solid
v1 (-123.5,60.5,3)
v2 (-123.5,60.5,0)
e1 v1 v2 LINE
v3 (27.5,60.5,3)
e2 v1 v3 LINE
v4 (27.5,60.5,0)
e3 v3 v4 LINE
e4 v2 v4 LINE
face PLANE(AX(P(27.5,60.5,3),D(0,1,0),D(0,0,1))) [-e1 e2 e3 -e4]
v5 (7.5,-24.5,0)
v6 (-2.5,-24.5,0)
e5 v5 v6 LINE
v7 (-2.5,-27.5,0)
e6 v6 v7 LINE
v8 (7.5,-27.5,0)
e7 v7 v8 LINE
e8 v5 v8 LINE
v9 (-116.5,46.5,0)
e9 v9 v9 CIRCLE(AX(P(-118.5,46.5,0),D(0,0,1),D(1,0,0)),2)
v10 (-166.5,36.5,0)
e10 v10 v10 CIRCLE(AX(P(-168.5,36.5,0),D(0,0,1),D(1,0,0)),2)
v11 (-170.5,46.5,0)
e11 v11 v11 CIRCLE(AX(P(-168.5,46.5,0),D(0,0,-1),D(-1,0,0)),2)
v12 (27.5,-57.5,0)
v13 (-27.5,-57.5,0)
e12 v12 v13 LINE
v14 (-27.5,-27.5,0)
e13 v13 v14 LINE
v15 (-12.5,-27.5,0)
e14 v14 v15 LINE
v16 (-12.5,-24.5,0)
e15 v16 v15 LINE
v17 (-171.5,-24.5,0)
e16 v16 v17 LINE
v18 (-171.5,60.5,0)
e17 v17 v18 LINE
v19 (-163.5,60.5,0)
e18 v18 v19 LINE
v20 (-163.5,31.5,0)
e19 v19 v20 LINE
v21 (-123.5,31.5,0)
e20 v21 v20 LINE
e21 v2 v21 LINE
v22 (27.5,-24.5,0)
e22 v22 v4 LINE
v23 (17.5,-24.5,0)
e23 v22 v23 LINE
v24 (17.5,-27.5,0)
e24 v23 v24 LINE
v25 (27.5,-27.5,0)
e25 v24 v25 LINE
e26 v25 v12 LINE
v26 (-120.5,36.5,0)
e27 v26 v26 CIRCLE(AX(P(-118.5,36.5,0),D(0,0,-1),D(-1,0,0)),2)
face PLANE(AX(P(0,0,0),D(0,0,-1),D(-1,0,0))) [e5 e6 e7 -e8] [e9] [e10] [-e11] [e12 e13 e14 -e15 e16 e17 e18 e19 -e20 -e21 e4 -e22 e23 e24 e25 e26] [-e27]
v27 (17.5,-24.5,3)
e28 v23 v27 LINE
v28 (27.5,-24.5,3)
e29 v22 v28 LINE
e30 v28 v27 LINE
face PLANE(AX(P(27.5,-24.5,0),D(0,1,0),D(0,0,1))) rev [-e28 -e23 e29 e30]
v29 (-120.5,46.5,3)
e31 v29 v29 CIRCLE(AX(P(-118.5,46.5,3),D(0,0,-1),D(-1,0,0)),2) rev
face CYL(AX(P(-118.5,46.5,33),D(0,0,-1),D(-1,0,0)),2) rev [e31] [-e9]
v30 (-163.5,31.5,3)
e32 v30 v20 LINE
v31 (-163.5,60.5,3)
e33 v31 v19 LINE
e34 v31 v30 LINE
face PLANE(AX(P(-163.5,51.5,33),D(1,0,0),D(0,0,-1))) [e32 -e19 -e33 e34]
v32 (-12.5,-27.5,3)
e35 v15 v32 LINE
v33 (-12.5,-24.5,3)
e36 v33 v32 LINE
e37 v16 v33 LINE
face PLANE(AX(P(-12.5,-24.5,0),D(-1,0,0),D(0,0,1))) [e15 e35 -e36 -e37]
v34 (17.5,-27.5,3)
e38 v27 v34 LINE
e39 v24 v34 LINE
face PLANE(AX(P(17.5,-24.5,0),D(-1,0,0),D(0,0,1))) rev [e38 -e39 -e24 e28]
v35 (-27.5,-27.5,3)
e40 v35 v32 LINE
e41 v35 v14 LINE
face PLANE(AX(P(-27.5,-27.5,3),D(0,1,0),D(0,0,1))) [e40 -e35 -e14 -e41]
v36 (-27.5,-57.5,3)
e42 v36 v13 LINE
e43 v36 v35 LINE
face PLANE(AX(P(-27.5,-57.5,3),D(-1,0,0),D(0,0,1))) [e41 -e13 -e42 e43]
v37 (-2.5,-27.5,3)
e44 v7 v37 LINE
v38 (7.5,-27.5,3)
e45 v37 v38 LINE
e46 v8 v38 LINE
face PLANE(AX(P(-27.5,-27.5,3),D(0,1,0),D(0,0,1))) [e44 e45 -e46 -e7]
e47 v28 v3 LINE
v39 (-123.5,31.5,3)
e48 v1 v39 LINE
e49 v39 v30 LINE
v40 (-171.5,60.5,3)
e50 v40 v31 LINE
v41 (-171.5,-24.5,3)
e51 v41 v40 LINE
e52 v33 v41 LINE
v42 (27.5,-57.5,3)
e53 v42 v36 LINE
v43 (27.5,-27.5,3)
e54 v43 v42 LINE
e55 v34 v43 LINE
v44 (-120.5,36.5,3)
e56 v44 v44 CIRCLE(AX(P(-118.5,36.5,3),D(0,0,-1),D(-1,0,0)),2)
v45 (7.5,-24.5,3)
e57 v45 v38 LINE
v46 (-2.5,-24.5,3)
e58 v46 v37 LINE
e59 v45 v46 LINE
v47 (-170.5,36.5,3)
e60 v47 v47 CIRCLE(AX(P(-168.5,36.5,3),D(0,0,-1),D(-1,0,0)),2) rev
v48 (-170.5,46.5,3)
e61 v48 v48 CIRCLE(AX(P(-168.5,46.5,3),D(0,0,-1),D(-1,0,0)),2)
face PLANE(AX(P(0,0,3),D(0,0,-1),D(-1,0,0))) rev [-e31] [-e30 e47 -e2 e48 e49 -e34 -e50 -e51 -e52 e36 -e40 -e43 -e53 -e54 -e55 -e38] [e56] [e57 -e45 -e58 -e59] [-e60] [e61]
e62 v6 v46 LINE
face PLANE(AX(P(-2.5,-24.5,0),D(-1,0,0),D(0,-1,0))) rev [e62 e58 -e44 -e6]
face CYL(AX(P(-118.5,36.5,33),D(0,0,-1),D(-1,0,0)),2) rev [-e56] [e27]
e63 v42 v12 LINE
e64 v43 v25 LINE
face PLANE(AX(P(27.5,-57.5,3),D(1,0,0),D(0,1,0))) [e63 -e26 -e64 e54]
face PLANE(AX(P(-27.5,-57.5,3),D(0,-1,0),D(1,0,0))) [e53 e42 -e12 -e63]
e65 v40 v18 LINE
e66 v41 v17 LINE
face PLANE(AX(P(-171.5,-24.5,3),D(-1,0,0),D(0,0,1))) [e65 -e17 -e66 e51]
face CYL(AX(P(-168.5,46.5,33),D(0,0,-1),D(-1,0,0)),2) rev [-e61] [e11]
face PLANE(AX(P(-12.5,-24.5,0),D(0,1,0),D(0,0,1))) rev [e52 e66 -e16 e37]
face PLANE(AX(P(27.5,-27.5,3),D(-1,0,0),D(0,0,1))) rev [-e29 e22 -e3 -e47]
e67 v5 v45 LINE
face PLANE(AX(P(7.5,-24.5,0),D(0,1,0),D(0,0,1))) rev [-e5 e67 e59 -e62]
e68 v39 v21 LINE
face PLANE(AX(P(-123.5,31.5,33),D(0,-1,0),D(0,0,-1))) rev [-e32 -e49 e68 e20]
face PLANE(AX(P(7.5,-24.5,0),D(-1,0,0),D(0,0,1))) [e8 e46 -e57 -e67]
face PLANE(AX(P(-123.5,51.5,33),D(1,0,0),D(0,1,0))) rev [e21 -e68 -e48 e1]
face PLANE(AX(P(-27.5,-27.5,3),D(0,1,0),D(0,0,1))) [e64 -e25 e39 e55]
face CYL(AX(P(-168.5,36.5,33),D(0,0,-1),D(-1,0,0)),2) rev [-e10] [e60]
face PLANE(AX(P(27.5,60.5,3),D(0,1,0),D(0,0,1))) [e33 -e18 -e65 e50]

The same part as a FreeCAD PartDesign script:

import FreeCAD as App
import Part
import Sketcher


def add_polygon(sketch, points):
    """Adds a closed chain of lines whose ends are joined by coincident constraints."""
    first, n = sketch.GeometryCount, len(points)
    for a, b in zip(points, points[1:] + points[:1]):
        sketch.addGeometry(Part.LineSegment(App.Vector(*a, 0), App.Vector(*b, 0)), False)
    for i in range(n):
        sketch.addConstraint(Sketcher.Constraint("Coincident", first + i, 2, first + (i + 1) % n, 1))

doc = App.newDocument("Part")
params = doc.addObject("Spreadsheet::Sheet", "Params")
for row, (alias, value) in enumerate([
    ("sketch1_width", "55 mm"),
    ("pad1_length", "3 mm"),
    ("sketch2_width", "10 mm"),
    ("sketch2_width2", "15 mm"),
    ("sketch2_height", "3 mm"),
    ("pocket1_length", "3 mm"),
    ("sketch3_width", "55 mm"),
    ("sketch3_height", "30 mm"),
    ("pad2_length", "3 mm"),
    ("sketch4_width", "144 mm"),
    ("sketch4_height", "52 mm"),
    ("pad3_length", "3 mm"),
    ("sketch5_width", "199 mm"),
    ("sketch5_height", "13 mm"),
    ("pad4_length", "3 mm"),
    ("sketch6_width", "199 mm"),
    ("sketch6_height", "20 mm"),
    ("pad5_length", "3 mm"),
    ("sketch7_diameter", "4 mm"),
    ("sketch7_width", "40 mm"),
    ("sketch7_height", "20 mm"),
    ("pocket2_length", "33 mm"),
    ("sketch8_width", "40 mm"),
    ("sketch8_height", "9 mm"),
    ("pocket3_length", "33 mm"),
], start=1):
    params.set(f"A{row}", alias)
    params.set(f"B{row}", "=" + value)
    params.setAlias(f"B{row}", alias)

body = doc.addObject("PartDesign::Body", "Body")

# Sketch on XY plane
sketch1 = body.newObject("Sketcher::SketchObject", "Sketch")
sketch1.AttachmentSupport = (doc.getObject("XY_Plane"), [""])
sketch1.MapMode = "FlatFace"
add_polygon(sketch1, [(-27.5, 27.5), (-27.5, -27.5), (27.5, -27.5), (27.5, 27.5)])  # lines 0-3
sketch1.addConstraint(Sketcher.Constraint("Vertical", 0))
sketch1.addConstraint(Sketcher.Constraint("Horizontal", 1))
sketch1.addConstraint(Sketcher.Constraint("Vertical", 2))
sketch1.addConstraint(Sketcher.Constraint("Horizontal", 3))
sketch1.addConstraint(Sketcher.Constraint("Symmetric", 0, 2, 2, 2, -1, 1))
sketch1.addConstraint(Sketcher.Constraint("Equal", 3, 0))
sketch1.addConstraint(Sketcher.Constraint("DistanceX", 1, 1, 1, 2, 55.0))
sketch1.setExpression("Constraints[10]", "Params.sketch1_width")
pad1 = body.newObject("PartDesign::Pad", "Pad")
pad1.Profile = sketch1
pad1.setExpression("Length", "Params.pad1_length")

# Sketch on XY plane
sketch2 = body.newObject("Sketcher::SketchObject", "Sketch001")
sketch2.AttachmentSupport = (doc.getObject("XY_Plane"), [""])
sketch2.MapMode = "FlatFace"
sketch2.AttachmentOffset = App.Placement(App.Vector(0, 0, 3), App.Rotation())
add_polygon(sketch2, [(17.5, -24.5), (17.5, -27.5), (27.5, -27.5), (27.5, -24.5)])  # lines 0-3
add_polygon(sketch2, [(-2.5, -24.5), (-2.5, -27.5), (7.5, -27.5), (7.5, -24.5)])  # lines 4-7
add_polygon(sketch2, [(-27.5, -24.5), (-27.5, -27.5), (-12.5, -27.5), (-12.5, -24.5)])  # lines 8-11
sketch2.addConstraint(Sketcher.Constraint("Vertical", 0))
sketch2.addConstraint(Sketcher.Constraint("Horizontal", 1))
sketch2.addConstraint(Sketcher.Constraint("Vertical", 2))
sketch2.addConstraint(Sketcher.Constraint("Horizontal", 3))
sketch2.addConstraint(Sketcher.Constraint("Vertical", 4))
sketch2.addConstraint(Sketcher.Constraint("Horizontal", 5))
sketch2.addConstraint(Sketcher.Constraint("Vertical", 6))
sketch2.addConstraint(Sketcher.Constraint("Horizontal", 7))
sketch2.addConstraint(Sketcher.Constraint("Vertical", 8))
sketch2.addConstraint(Sketcher.Constraint("Horizontal", 9))
sketch2.addConstraint(Sketcher.Constraint("Vertical", 10))
sketch2.addConstraint(Sketcher.Constraint("Horizontal", 11))
sketch2.addConstraint(Sketcher.Constraint("Symmetric", 1, 2, 8, 2, -2))
sketch2.addConstraint(Sketcher.Constraint("Horizontal", 1, 2, 4, 2))
sketch2.addConstraint(Sketcher.Constraint("Horizontal", 3, 2, 6, 2))
sketch2.addConstraint(Sketcher.Constraint("Horizontal", 7, 2, 10, 2))
sketch2.addConstraint(Sketcher.Constraint("Equal", 3, 5))
sketch2.addConstraint(Sketcher.Constraint("DistanceX", 1, 1, 1, 2, 10.0))
sketch2.addConstraint(Sketcher.Constraint("DistanceX", 9, 1, 9, 2, 15.0))
sketch2.addConstraint(Sketcher.Constraint("DistanceY", 0, 2, 0, 1, 3.0))
sketch2.addConstraint(Sketcher.Constraint("DistanceX", 4, 2, 0, 2, 20.0))
sketch2.addConstraint(Sketcher.Constraint("DistanceX", 8, 2, 4, 2, 25.0))
sketch2.addConstraint(Sketcher.Constraint("DistanceY", 0, 2, -1, 1, 27.5))
sketch2.setExpression("Constraints[29]", "Params.sketch2_width")
sketch2.setExpression("Constraints[30]", "Params.sketch2_width2")
sketch2.setExpression("Constraints[31]", "Params.sketch2_height")
pocket1 = body.newObject("PartDesign::Pocket", "Pocket")
pocket1.Profile = sketch2
pocket1.setExpression("Length", "Params.pocket1_length")

# Sketch on XY plane
sketch3 = body.newObject("Sketcher::SketchObject", "Sketch002")
sketch3.AttachmentSupport = (doc.getObject("XY_Plane"), [""])
sketch3.MapMode = "FlatFace"
add_polygon(sketch3, [(27.5, -27.5), (27.5, -57.5), (-27.5, -57.5), (-27.5, -27.5)])  # lines 0-3
sketch3.addConstraint(Sketcher.Constraint("Vertical", 0))
sketch3.addConstraint(Sketcher.Constraint("Horizontal", 1))
sketch3.addConstraint(Sketcher.Constraint("Vertical", 2))
sketch3.addConstraint(Sketcher.Constraint("Horizontal", 3))
sketch3.addConstraint(Sketcher.Constraint("DistanceX", 1, 2, 1, 1, 55.0))
sketch3.addConstraint(Sketcher.Constraint("DistanceY", 0, 2, 0, 1, 30.0))
sketch3.addConstraint(Sketcher.Constraint("DistanceX", -1, 1, 0, 2, 27.5))
sketch3.addConstraint(Sketcher.Constraint("DistanceY", 0, 2, -1, 1, 57.5))
sketch3.setExpression("Constraints[8]", "Params.sketch3_width")
sketch3.setExpression("Constraints[9]", "Params.sketch3_height")
pad2 = body.newObject("PartDesign::Pad", "Pad001")
pad2.Profile = sketch3
pad2.setExpression("Length", "Params.pad2_length")

# Sketch on XY plane
sketch4 = body.newObject("Sketcher::SketchObject", "Sketch003")
sketch4.AttachmentSupport = (doc.getObject("XY_Plane"), [""])
sketch4.MapMode = "FlatFace"
add_polygon(sketch4, [(-27.5, 27.5), (-27.5, -24.5), (-171.5, -24.5), (-171.5, 27.5)])  # lines 0-3
sketch4.addConstraint(Sketcher.Constraint("Vertical", 0))
sketch4.addConstraint(Sketcher.Constraint("Horizontal", 1))
sketch4.addConstraint(Sketcher.Constraint("Vertical", 2))
sketch4.addConstraint(Sketcher.Constraint("Horizontal", 3))
sketch4.addConstraint(Sketcher.Constraint("DistanceX", 1, 2, 1, 1, 144.0))
sketch4.addConstraint(Sketcher.Constraint("DistanceY", 0, 2, 0, 1, 52.0))
sketch4.addConstraint(Sketcher.Constraint("DistanceX", 0, 2, -1, 1, 27.5))
sketch4.addConstraint(Sketcher.Constraint("DistanceY", 0, 2, -1, 1, 24.5))
sketch4.setExpression("Constraints[8]", "Params.sketch4_width")
sketch4.setExpression("Constraints[9]", "Params.sketch4_height")
pad3 = body.newObject("PartDesign::Pad", "Pad002")
pad3.Profile = sketch4
pad3.setExpression("Length", "Params.pad3_length")

# Sketch on XY plane
sketch5 = body.newObject("Sketcher::SketchObject", "Sketch004")
sketch5.AttachmentSupport = (doc.getObject("XY_Plane"), [""])
sketch5.MapMode = "FlatFace"
add_polygon(sketch5, [(27.5, 40.5), (27.5, 27.5), (-171.5, 27.5), (-171.5, 40.5)])  # lines 0-3
sketch5.addConstraint(Sketcher.Constraint("Vertical", 0))
sketch5.addConstraint(Sketcher.Constraint("Horizontal", 1))
sketch5.addConstraint(Sketcher.Constraint("Vertical", 2))
sketch5.addConstraint(Sketcher.Constraint("Horizontal", 3))
sketch5.addConstraint(Sketcher.Constraint("DistanceX", 1, 2, 1, 1, 199.0))
sketch5.addConstraint(Sketcher.Constraint("DistanceY", 0, 2, 0, 1, 13.0))
sketch5.addConstraint(Sketcher.Constraint("DistanceX", -1, 1, 0, 2, 27.5))
sketch5.addConstraint(Sketcher.Constraint("DistanceY", -1, 1, 0, 2, 27.5))
sketch5.setExpression("Constraints[8]", "Params.sketch5_width")
sketch5.setExpression("Constraints[9]", "Params.sketch5_height")
pad4 = body.newObject("PartDesign::Pad", "Pad003")
pad4.Profile = sketch5
pad4.setExpression("Length", "Params.pad4_length")

# Sketch on XY plane
sketch6 = body.newObject("Sketcher::SketchObject", "Sketch005")
sketch6.AttachmentSupport = (doc.getObject("XY_Plane"), [""])
sketch6.MapMode = "FlatFace"
add_polygon(sketch6, [(27.5, 60.5), (27.5, 40.5), (-171.5, 40.5), (-171.5, 60.5)])  # lines 0-3
sketch6.addConstraint(Sketcher.Constraint("Vertical", 0))
sketch6.addConstraint(Sketcher.Constraint("Horizontal", 1))
sketch6.addConstraint(Sketcher.Constraint("Vertical", 2))
sketch6.addConstraint(Sketcher.Constraint("Horizontal", 3))
sketch6.addConstraint(Sketcher.Constraint("DistanceX", 1, 2, 1, 1, 199.0))
sketch6.addConstraint(Sketcher.Constraint("DistanceY", 0, 2, 0, 1, 20.0))
sketch6.addConstraint(Sketcher.Constraint("DistanceX", -1, 1, 0, 2, 27.5))
sketch6.addConstraint(Sketcher.Constraint("DistanceY", -1, 1, 0, 2, 40.5))
sketch6.setExpression("Constraints[8]", "Params.sketch6_width")
sketch6.setExpression("Constraints[9]", "Params.sketch6_height")
pad5 = body.newObject("PartDesign::Pad", "Pad004")
pad5.Profile = sketch6
pad5.setExpression("Length", "Params.pad5_length")

# Sketch on XY plane
sketch7 = body.newObject("Sketcher::SketchObject", "Sketch006")
sketch7.AttachmentSupport = (doc.getObject("XY_Plane"), [""])
sketch7.MapMode = "FlatFace"
sketch7.addGeometry(Part.Circle(App.Vector(-168.5, 46.5, 0), App.Vector(0, 0, 1), 2), False)  # 0
sketch7.addGeometry(Part.Circle(App.Vector(-168.5, 36.5, 0), App.Vector(0, 0, 1), 2), False)  # 1
sketch7.addGeometry(Part.Circle(App.Vector(-118.5, 36.5, 0), App.Vector(0, 0, 1), 2), False)  # 2
sketch7.addGeometry(Part.Circle(App.Vector(-118.5, 46.5, 0), App.Vector(0, 0, 1), 2), False)  # 3
add_polygon(sketch7, [(-123.5, 51.5), (-123.5, 31.5), (-163.5, 31.5), (-163.5, 51.5)])  # lines 4-7
sketch7.addConstraint(Sketcher.Constraint("Vertical", 4))
sketch7.addConstraint(Sketcher.Constraint("Horizontal", 5))
sketch7.addConstraint(Sketcher.Constraint("Vertical", 6))
sketch7.addConstraint(Sketcher.Constraint("Horizontal", 7))
sketch7.addConstraint(Sketcher.Constraint("Equal", 0, 1))
sketch7.addConstraint(Sketcher.Constraint("Equal", 1, 2))
sketch7.addConstraint(Sketcher.Constraint("Equal", 2, 3))
sketch7.addConstraint(Sketcher.Constraint("Horizontal", 1, 3, 2, 3))
sketch7.addConstraint(Sketcher.Constraint("Horizontal", 0, 3, 3, 3))
sketch7.addConstraint(Sketcher.Constraint("Vertical", 0, 3, 1, 3))
sketch7.addConstraint(Sketcher.Constraint("Vertical", 2, 3, 3, 3))
sketch7.addConstraint(Sketcher.Constraint("Diameter", 0, 4.0))
sketch7.addConstraint(Sketcher.Constraint("DistanceX", 5, 2, 5, 1, 40.0))
sketch7.addConstraint(Sketcher.Constraint("DistanceY", 4, 2, 4, 1, 20.0))
sketch7.addConstraint(Sketcher.Constraint("DistanceY", 1, 3, 0, 3, 10.0))
sketch7.addConstraint(Sketcher.Constraint("DistanceX", 1, 3, 2, 3, 50.0))
sketch7.addConstraint(Sketcher.Constraint("DistanceX", 4, 2, 2, 3, 5.0))
sketch7.addConstraint(Sketcher.Constraint("DistanceY", 4, 2, 2, 3, 5.0))
sketch7.addConstraint(Sketcher.Constraint("DistanceX", 0, 3, -1, 1, 168.5))
sketch7.addConstraint(Sketcher.Constraint("DistanceY", -1, 1, 0, 3, 46.5))
sketch7.setExpression("Constraints[15]", "Params.sketch7_diameter")
sketch7.setExpression("Constraints[16]", "Params.sketch7_width")
sketch7.setExpression("Constraints[17]", "Params.sketch7_height")
pocket2 = body.newObject("PartDesign::Pocket", "Pocket001")
pocket2.Profile = sketch7
pocket2.setExpression("Length", "Params.pocket2_length")
pocket2.Reversed = True

# Sketch on XY plane
sketch8 = body.newObject("Sketcher::SketchObject", "Sketch007")
sketch8.AttachmentSupport = (doc.getObject("XY_Plane"), [""])
sketch8.MapMode = "FlatFace"
add_polygon(sketch8, [(-123.5, 60.5), (-123.5, 51.5), (-163.5, 51.5), (-163.5, 60.5)])  # lines 0-3
sketch8.addConstraint(Sketcher.Constraint("Vertical", 0))
sketch8.addConstraint(Sketcher.Constraint("Horizontal", 1))
sketch8.addConstraint(Sketcher.Constraint("Vertical", 2))
sketch8.addConstraint(Sketcher.Constraint("Horizontal", 3))
sketch8.addConstraint(Sketcher.Constraint("DistanceX", 1, 2, 1, 1, 40.0))
sketch8.addConstraint(Sketcher.Constraint("DistanceY", 0, 2, 0, 1, 9.0))
sketch8.addConstraint(Sketcher.Constraint("DistanceX", 0, 2, -1, 1, 123.5))
sketch8.addConstraint(Sketcher.Constraint("DistanceY", -1, 1, 0, 2, 51.5))
sketch8.setExpression("Constraints[8]", "Params.sketch8_width")
sketch8.setExpression("Constraints[9]", "Params.sketch8_height")
pocket3 = body.newObject("PartDesign::Pocket", "Pocket002")
pocket3.Profile = sketch8
pocket3.setExpression("Length", "Params.pocket3_length")
pocket3.Reversed = True

doc.recompute()
